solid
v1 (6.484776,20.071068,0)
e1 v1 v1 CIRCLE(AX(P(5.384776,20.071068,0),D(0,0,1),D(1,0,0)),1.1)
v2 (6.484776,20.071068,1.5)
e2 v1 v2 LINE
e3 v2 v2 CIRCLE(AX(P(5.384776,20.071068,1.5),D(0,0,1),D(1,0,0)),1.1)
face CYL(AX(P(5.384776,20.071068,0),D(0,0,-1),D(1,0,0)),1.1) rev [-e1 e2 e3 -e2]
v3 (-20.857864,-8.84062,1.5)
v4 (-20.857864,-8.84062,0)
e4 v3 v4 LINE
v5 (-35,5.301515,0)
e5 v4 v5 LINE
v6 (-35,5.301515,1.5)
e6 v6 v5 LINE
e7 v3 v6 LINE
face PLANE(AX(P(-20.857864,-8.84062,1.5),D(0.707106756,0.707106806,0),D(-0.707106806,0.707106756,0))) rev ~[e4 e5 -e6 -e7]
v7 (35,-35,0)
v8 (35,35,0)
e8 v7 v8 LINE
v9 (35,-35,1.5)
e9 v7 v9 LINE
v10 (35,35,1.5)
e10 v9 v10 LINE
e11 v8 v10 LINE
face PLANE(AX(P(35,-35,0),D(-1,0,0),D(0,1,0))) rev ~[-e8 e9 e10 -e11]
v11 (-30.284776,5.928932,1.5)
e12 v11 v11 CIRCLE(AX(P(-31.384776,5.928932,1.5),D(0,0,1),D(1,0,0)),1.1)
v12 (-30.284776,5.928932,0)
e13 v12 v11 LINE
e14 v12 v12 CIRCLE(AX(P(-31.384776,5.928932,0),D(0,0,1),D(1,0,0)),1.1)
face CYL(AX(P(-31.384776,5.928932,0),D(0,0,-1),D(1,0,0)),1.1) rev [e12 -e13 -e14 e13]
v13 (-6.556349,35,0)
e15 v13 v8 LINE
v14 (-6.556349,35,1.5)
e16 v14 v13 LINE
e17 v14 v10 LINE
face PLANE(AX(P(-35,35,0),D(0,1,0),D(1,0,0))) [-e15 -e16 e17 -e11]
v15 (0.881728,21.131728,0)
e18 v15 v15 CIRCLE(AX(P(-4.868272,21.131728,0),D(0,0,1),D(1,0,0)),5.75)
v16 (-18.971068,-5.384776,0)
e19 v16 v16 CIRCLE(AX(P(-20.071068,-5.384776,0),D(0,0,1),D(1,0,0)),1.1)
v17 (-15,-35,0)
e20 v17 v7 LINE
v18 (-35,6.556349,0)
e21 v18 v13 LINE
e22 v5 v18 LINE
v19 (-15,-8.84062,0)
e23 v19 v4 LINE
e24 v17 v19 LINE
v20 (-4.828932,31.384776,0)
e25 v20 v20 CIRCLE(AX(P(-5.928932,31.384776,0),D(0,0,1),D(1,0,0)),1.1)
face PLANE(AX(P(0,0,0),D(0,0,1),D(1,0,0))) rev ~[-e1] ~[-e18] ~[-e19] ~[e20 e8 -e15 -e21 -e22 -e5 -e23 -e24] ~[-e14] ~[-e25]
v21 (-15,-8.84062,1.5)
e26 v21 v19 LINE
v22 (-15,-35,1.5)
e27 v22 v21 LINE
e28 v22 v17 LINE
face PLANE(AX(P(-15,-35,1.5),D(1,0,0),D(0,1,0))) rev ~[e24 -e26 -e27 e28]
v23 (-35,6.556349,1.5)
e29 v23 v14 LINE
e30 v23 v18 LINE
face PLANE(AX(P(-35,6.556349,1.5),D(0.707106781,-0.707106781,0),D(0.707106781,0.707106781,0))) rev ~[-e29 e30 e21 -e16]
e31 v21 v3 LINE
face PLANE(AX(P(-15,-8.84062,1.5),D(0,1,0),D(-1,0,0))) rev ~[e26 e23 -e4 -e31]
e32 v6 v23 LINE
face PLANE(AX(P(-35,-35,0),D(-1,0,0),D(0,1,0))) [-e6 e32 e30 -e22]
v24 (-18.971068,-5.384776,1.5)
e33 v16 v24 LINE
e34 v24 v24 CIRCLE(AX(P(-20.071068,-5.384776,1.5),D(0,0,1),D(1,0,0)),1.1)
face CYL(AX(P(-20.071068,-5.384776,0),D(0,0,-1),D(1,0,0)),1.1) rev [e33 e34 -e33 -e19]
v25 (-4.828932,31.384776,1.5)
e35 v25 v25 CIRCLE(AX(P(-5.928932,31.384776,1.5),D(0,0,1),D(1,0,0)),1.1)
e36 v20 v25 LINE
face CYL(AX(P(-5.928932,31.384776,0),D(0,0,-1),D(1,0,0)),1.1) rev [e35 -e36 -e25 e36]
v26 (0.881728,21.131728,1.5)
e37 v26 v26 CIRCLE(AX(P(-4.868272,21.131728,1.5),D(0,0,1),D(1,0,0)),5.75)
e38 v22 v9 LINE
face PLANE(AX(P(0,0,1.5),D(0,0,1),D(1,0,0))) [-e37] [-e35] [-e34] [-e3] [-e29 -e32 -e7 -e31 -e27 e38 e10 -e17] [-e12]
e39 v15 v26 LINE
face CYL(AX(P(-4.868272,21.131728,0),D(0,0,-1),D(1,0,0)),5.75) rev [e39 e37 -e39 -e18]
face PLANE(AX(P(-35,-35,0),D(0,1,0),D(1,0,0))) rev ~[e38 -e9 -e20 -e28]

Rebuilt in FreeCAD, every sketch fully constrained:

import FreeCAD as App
import Part
import Sketcher
from FreeCAD import Vector

doc = App.newDocument("Part")
body = doc.addObject("PartDesign::Body", "Body")

# Sketch on XY plane
sketch1 = doc.addObject("Sketcher::SketchObject", "Sketch")
body.addObject(sketch1)
sketch1.AttachmentSupport = (doc.XY_Plane, [""])
sketch1.MapMode = "FlatFace"
sketch1.addGeometry(Part.LineSegment(Vector(-35, 35, 0), Vector(-35, -35, 0)), False)
sketch1.addGeometry(Part.LineSegment(Vector(-35, -35, 0), Vector(35, -35, 0)), False)
sketch1.addGeometry(Part.LineSegment(Vector(35, -35, 0), Vector(35, 35, 0)), False)
sketch1.addGeometry(Part.LineSegment(Vector(35, 35, 0), Vector(-35, 35, 0)), False)
sketch1.addGeometry(Part.Circle(Vector(-20.1, -5.4, 0), Vector(0, 0, 1), 1.1), False)
sketch1.addGeometry(Part.Circle(Vector(-31.4, 5.9, 0), Vector(0, 0, 1), 1.1), False)
sketch1.addGeometry(Part.Circle(Vector(-4.9, 21.1, 0), Vector(0, 0, 1), 5.8), False)
sketch1.addGeometry(Part.Circle(Vector(5.4, 20.1, 0), Vector(0, 0, 1), 1.1), False)
sketch1.addGeometry(Part.Circle(Vector(-5.9, 31.4, 0), Vector(0, 0, 1), 1.1), False)
sketch1.addConstraint(Sketcher.Constraint("Coincident", 0, 2, 1, 1))
sketch1.addConstraint(Sketcher.Constraint("Coincident", 1, 2, 2, 1))
sketch1.addConstraint(Sketcher.Constraint("Coincident", 2, 2, 3, 1))
sketch1.addConstraint(Sketcher.Constraint("Coincident", 3, 2, 0, 1))
sketch1.addConstraint(Sketcher.Constraint("Vertical", 0))
sketch1.addConstraint(Sketcher.Constraint("Horizontal", 1))
sketch1.addConstraint(Sketcher.Constraint("Vertical", 2))
sketch1.addConstraint(Sketcher.Constraint("Horizontal", 3))
sketch1.addConstraint(Sketcher.Constraint("Equal", 4, 5))
sketch1.addConstraint(Sketcher.Constraint("Equal", 5, 7))
sketch1.addConstraint(Sketcher.Constraint("Equal", 7, 8))
sketch1.addConstraint(Sketcher.Constraint("Symmetric", 0, 2, 2, 2, -1, 1))
sketch1.addConstraint(Sketcher.Constraint("Equal", 3, 0))
sketch1.addConstraint(Sketcher.Constraint("Diameter", 4, 2.2))
sketch1.addConstraint(Sketcher.Constraint("Diameter", 6, 11.5))
sketch1.addConstraint(Sketcher.Constraint("DistanceX", 1, 1, 1, 2, 70.0))
sketch1.addConstraint(Sketcher.Constraint("DistanceX", 4, 3, -1, 1, 20.071068))
sketch1.addConstraint(Sketcher.Constraint("DistanceY", -1, 1, 5, 3, 5.928932))
sketch1.addConstraint(Sketcher.Constraint("DistanceY", -1, 1, 7, 3, 20.071068))
sketch1.addConstraint(Sketcher.Constraint("DistanceX", 8, 3, -1, 1, 5.928932))
sketch1.addConstraint(Sketcher.Constraint("DistanceY", 7, 3, 6, 3, 1.06066))
sketch1.addConstraint(Sketcher.Constraint("DistanceX", 5, 3, 7, 3, 36.769552))
sketch1.addConstraint(Sketcher.Constraint("DistanceX", 8, 3, 6, 3, 1.06066))
sketch1.addConstraint(Sketcher.Constraint("DistanceY", 4, 3, 8, 3, 36.769552))
sketch1.addConstraint(Sketcher.Constraint("DistanceY", 4, 3, -1, 1, 5.384776))
sketch1.addConstraint(Sketcher.Constraint("DistanceX", 5, 3, -1, 1, 31.384776))
pad1 = doc.addObject("PartDesign::Pad", "Pad")
body.addObject(pad1)
pad1.Profile = sketch1
pad1.Length = 1.5

# Sketch on XY plane
sketch2 = doc.addObject("Sketcher::SketchObject", "Sketch001")
body.addObject(sketch2)
sketch2.AttachmentSupport = (doc.XY_Plane, [""])
sketch2.MapMode = "FlatFace"
sketch2.AttachmentOffset = App.Placement(Vector(0, 0, 1.5), App.Rotation())
sketch2.addGeometry(Part.LineSegment(Vector(-35, 35, 0), Vector(-35, 7, 0)), False)
sketch2.addGeometry(Part.LineSegment(Vector(-35, 7, 0), Vector(-7, 35, 0)), False)
sketch2.addGeometry(Part.LineSegment(Vector(-7, 35, 0), Vector(-35, 35, 0)), False)
sketch2.addGeometry(Part.LineSegment(Vector(-21, -9, 0), Vector(-35, 5, 0)), False)
sketch2.addGeometry(Part.LineSegment(Vector(-35, 5, 0), Vector(-35, -35, 0)), False)
sketch2.addGeometry(Part.LineSegment(Vector(-35, -35, 0), Vector(-15, -35, 0)), False)
sketch2.addGeometry(Part.LineSegment(Vector(-15, -35, 0), Vector(-15, -9, 0)), False)
sketch2.addGeometry(Part.LineSegment(Vector(-15, -9, 0), Vector(-21, -9, 0)), False)
sketch2.addConstraint(Sketcher.Constraint("Coincident", 0, 2, 1, 1))
sketch2.addConstraint(Sketcher.Constraint("Coincident", 1, 2, 2, 1))
sketch2.addConstraint(Sketcher.Constraint("Coincident", 2, 2, 0, 1))
sketch2.addConstraint(Sketcher.Constraint("Coincident", 3, 2, 4, 1))
sketch2.addConstraint(Sketcher.Constraint("Coincident", 4, 2, 5, 1))
sketch2.addConstraint(Sketcher.Constraint("Coincident", 5, 2, 6, 1))
sketch2.addConstraint(Sketcher.Constraint("Coincident", 6, 2, 7, 1))
sketch2.addConstraint(Sketcher.Constraint("Coincident", 7, 2, 3, 1))
sketch2.addConstraint(Sketcher.Constraint("Vertical", 0))
sketch2.addConstraint(Sketcher.Constraint("Horizontal", 2))
sketch2.addConstraint(Sketcher.Constraint("Vertical", 4))
sketch2.addConstraint(Sketcher.Constraint("Horizontal", 5))
sketch2.addConstraint(Sketcher.Constraint("Vertical", 6))
sketch2.addConstraint(Sketcher.Constraint("Horizontal", 7))
sketch2.addConstraint(Sketcher.Constraint("Symmetric", 2, 2, 4, 2, -1))
sketch2.addConstraint(Sketcher.Constraint("Perpendicular", 1, 3))
sketch2.addConstraint(Sketcher.Constraint("Equal", 2, 0))
sketch2.addConstraint(Sketcher.Constraint("DistanceX", 5, 1, 5, 2, 20.0))
sketch2.addConstraint(Sketcher.Constraint("Distance", 3, 20.0))
sketch2.addConstraint(Sketcher.Constraint("DistanceX", 0, 2, -1, 1, 35.0))
sketch2.addConstraint(Sketcher.Constraint("DistanceY", -1, 1, 1, 2, 35.0))
sketch2.addConstraint(Sketcher.Constraint("DistanceX", 2, 2, 2, 1, 28.443651))
sketch2.addConstraint(Sketcher.Constraint("DistanceY", 6, 1, 6, 2, 26.15938))
pocket1 = doc.addObject("PartDesign::Pocket", "Pocket")
body.addObject(pocket1)
pocket1.Profile = sketch2
pocket1.Type = "ThroughAll"

doc.recompute()
